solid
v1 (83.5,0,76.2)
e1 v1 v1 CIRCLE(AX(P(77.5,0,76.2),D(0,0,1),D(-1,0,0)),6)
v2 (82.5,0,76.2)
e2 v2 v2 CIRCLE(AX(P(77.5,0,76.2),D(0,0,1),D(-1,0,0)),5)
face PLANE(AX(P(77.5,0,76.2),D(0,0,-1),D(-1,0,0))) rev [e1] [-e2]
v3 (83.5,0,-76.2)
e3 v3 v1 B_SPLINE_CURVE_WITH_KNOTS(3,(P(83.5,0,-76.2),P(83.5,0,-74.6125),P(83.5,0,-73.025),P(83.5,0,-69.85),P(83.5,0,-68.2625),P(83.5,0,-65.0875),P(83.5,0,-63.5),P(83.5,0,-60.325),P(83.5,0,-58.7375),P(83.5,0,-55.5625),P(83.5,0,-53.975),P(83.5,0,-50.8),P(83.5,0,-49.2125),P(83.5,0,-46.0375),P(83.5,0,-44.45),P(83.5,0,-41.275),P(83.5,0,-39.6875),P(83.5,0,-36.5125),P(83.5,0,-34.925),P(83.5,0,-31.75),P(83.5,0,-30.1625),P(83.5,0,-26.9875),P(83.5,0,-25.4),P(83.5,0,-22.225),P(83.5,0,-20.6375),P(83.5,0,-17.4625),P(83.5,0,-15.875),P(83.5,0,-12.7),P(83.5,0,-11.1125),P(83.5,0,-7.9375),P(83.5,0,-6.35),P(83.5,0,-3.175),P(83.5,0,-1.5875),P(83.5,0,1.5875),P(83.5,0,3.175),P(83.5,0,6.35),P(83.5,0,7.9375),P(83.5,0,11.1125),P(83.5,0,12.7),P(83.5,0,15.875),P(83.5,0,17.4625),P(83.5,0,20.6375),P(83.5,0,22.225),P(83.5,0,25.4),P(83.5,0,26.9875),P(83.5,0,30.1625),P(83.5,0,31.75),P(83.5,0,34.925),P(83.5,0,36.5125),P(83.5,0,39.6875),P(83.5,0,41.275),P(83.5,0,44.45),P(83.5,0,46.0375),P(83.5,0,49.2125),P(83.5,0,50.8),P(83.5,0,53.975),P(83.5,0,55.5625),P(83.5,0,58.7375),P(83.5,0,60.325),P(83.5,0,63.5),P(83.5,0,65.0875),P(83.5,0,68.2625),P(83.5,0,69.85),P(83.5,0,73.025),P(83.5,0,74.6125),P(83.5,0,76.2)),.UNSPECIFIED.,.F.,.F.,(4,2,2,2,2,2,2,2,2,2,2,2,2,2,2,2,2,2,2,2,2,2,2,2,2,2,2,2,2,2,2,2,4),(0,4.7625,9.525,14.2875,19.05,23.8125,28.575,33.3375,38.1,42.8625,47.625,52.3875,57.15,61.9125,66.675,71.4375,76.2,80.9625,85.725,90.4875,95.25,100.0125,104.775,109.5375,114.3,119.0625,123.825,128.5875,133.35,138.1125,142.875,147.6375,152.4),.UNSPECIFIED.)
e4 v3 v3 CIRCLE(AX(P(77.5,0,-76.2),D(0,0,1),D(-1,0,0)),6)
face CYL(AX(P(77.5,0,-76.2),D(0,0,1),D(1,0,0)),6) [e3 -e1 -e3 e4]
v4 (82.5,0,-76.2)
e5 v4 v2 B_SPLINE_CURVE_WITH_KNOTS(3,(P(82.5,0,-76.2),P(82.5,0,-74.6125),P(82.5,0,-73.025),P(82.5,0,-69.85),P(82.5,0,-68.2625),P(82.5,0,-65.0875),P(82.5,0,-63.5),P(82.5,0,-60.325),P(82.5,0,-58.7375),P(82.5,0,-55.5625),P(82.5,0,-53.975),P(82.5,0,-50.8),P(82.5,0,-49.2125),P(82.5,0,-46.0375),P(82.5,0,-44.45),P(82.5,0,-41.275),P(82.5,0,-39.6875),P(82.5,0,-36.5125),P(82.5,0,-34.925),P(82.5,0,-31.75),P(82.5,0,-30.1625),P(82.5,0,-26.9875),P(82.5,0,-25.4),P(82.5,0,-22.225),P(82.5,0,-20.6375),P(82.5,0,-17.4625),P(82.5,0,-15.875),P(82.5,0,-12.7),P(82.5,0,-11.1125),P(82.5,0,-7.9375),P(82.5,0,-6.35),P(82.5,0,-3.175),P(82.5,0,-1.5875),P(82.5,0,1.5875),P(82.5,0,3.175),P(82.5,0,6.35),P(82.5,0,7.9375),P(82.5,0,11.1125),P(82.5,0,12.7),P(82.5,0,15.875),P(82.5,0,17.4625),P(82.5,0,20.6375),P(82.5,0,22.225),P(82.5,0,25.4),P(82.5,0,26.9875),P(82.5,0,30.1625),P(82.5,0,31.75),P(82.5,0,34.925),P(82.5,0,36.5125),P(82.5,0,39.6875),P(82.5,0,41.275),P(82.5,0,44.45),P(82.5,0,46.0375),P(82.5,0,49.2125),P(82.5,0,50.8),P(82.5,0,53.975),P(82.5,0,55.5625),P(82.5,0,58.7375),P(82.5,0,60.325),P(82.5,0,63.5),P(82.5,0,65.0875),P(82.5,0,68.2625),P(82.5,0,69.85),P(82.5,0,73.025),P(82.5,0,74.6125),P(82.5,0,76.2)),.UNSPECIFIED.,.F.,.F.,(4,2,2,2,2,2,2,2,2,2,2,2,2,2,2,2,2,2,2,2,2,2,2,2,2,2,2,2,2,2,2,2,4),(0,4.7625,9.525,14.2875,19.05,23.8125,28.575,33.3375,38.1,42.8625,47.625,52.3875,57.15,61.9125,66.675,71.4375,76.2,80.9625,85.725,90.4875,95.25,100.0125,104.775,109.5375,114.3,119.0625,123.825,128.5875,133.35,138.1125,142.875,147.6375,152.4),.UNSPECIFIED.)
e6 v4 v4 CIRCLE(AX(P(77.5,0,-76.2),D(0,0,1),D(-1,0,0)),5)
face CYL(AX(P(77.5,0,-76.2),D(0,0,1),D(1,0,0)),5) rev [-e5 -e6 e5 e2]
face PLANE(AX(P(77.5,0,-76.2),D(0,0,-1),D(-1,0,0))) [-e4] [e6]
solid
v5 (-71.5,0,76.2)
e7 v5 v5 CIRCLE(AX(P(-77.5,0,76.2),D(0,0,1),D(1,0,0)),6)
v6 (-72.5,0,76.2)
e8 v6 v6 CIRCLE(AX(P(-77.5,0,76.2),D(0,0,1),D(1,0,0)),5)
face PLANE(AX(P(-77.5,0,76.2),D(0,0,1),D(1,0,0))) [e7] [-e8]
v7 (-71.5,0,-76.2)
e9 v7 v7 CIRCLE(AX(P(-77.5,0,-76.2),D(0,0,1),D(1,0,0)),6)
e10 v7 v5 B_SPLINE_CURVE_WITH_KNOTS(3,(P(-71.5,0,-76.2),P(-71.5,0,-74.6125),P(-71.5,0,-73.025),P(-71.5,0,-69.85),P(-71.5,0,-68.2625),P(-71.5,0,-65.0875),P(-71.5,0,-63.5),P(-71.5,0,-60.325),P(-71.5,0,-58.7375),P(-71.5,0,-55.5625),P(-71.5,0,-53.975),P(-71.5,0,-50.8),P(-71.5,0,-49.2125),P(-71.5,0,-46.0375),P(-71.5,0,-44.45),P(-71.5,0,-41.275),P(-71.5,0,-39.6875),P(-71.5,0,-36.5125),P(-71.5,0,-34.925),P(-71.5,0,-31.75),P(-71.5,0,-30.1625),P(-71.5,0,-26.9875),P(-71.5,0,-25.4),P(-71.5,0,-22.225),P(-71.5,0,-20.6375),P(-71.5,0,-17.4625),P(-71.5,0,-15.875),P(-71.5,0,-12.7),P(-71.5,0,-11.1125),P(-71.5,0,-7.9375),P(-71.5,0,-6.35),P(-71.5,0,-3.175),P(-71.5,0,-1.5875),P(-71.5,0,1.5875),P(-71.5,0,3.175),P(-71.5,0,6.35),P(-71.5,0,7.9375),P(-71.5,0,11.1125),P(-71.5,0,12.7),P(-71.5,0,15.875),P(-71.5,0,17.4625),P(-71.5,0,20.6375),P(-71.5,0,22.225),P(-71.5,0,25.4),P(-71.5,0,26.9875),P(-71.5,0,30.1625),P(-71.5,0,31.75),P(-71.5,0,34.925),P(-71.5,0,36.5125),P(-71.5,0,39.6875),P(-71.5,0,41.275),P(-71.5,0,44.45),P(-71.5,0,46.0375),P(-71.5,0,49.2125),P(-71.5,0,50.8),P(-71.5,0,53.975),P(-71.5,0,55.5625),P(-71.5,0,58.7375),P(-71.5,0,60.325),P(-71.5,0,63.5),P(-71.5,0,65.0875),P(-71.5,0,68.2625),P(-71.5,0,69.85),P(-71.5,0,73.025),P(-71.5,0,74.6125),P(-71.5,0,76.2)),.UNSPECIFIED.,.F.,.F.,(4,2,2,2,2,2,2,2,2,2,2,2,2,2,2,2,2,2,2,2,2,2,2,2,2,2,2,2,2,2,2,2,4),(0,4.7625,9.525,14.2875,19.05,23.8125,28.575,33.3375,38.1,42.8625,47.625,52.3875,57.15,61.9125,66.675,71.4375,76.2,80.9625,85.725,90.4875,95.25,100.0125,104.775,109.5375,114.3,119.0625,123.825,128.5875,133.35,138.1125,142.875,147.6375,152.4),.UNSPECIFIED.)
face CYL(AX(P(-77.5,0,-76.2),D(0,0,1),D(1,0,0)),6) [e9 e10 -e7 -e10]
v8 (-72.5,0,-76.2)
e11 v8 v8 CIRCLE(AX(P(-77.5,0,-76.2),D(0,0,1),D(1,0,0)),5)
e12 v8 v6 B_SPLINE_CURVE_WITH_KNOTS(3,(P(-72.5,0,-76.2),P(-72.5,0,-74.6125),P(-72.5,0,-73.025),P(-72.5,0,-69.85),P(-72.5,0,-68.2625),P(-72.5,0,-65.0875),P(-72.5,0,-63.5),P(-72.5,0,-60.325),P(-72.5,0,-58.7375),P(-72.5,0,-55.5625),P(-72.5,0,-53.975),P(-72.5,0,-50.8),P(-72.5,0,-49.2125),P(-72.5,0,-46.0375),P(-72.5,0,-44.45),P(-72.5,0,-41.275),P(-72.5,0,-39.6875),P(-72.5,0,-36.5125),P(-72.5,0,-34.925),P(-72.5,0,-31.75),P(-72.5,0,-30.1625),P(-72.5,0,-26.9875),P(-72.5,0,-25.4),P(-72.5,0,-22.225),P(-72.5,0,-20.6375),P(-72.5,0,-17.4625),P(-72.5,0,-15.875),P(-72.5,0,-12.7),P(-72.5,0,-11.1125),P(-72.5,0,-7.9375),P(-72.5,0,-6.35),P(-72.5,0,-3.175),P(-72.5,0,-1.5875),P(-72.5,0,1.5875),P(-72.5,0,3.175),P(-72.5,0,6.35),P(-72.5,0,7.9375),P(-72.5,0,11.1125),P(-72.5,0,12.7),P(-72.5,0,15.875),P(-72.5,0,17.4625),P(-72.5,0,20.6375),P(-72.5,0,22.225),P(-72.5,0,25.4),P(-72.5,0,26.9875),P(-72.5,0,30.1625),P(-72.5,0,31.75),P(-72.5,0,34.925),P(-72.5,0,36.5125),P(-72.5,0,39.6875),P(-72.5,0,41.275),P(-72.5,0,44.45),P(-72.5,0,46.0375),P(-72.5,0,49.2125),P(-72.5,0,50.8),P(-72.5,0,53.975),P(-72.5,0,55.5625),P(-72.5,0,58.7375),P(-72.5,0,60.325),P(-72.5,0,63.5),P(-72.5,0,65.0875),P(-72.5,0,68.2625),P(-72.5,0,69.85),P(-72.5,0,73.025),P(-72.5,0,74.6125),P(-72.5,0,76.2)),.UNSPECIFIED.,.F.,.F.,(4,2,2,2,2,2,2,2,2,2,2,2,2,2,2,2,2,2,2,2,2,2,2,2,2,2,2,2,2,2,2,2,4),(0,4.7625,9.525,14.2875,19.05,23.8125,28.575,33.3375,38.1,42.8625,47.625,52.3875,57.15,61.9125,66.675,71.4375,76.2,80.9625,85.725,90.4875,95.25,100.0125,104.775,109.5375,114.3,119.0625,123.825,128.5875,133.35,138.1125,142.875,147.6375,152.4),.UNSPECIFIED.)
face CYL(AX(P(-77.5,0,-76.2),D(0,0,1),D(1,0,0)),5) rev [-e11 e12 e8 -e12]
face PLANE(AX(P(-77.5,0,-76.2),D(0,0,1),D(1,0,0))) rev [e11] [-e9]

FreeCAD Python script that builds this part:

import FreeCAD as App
import Part
import Sketcher

doc = App.newDocument("Part")
body = doc.addObject("PartDesign::Body", "Body")

# Sketch on XY plane
sketch1 = body.newObject("Sketcher::SketchObject", "Sketch")
sketch1.AttachmentSupport = (doc.getObject("XY_Plane"), [""])
sketch1.MapMode = "FlatFace"
sketch1.addGeometry([
    Part.Circle(App.Vector(-78, 0, 0), App.Vector(0, 0, 1), 6),
    Part.Circle(App.Vector(-78, 0, 0), App.Vector(0, 0, 1), 5),
], False)
sketch1.addConstraint([
    Sketcher.Constraint("Coincident", 1, 3, 0, 3),
    Sketcher.Constraint("PointOnObject", 0, 3, -1),
    Sketcher.Constraint("Diameter", 0, 12.0),
    Sketcher.Constraint("Diameter", 1, 10.0),
    Sketcher.Constraint("DistanceX", 0, 3, -1, 1, 77.5),
])
pad1 = body.newObject("PartDesign::Pad", "Pad")
pad1.Profile = sketch1
pad1.Length = 152.4
pad1.Midplane = True
body2 = doc.addObject("PartDesign::Body", "Body001")

# Sketch on XY plane
sketch2 = body2.newObject("Sketcher::SketchObject", "Sketch001")
sketch2.AttachmentSupport = (doc.getObject("XY_Plane001"), [""])
sketch2.MapMode = "FlatFace"
sketch2.addGeometry([
    Part.Circle(App.Vector(78, 0, 0), App.Vector(0, 0, 1), 6),
    Part.Circle(App.Vector(78, 0, 0), App.Vector(0, 0, 1), 5),
], False)
sketch2.addConstraint([
    Sketcher.Constraint("Coincident", 1, 3, 0, 3),
    Sketcher.Constraint("PointOnObject", 0, 3, -1),
    Sketcher.Constraint("Diameter", 0, 12.0),
    Sketcher.Constraint("Diameter", 1, 10.0),
    Sketcher.Constraint("DistanceX", -1, 1, 0, 3, 77.5),
])
pad2 = body2.newObject("PartDesign::Pad", "Pad001")
pad2.Profile = sketch2
pad2.Length = 152.4
pad2.Midplane = True

doc.recompute()
